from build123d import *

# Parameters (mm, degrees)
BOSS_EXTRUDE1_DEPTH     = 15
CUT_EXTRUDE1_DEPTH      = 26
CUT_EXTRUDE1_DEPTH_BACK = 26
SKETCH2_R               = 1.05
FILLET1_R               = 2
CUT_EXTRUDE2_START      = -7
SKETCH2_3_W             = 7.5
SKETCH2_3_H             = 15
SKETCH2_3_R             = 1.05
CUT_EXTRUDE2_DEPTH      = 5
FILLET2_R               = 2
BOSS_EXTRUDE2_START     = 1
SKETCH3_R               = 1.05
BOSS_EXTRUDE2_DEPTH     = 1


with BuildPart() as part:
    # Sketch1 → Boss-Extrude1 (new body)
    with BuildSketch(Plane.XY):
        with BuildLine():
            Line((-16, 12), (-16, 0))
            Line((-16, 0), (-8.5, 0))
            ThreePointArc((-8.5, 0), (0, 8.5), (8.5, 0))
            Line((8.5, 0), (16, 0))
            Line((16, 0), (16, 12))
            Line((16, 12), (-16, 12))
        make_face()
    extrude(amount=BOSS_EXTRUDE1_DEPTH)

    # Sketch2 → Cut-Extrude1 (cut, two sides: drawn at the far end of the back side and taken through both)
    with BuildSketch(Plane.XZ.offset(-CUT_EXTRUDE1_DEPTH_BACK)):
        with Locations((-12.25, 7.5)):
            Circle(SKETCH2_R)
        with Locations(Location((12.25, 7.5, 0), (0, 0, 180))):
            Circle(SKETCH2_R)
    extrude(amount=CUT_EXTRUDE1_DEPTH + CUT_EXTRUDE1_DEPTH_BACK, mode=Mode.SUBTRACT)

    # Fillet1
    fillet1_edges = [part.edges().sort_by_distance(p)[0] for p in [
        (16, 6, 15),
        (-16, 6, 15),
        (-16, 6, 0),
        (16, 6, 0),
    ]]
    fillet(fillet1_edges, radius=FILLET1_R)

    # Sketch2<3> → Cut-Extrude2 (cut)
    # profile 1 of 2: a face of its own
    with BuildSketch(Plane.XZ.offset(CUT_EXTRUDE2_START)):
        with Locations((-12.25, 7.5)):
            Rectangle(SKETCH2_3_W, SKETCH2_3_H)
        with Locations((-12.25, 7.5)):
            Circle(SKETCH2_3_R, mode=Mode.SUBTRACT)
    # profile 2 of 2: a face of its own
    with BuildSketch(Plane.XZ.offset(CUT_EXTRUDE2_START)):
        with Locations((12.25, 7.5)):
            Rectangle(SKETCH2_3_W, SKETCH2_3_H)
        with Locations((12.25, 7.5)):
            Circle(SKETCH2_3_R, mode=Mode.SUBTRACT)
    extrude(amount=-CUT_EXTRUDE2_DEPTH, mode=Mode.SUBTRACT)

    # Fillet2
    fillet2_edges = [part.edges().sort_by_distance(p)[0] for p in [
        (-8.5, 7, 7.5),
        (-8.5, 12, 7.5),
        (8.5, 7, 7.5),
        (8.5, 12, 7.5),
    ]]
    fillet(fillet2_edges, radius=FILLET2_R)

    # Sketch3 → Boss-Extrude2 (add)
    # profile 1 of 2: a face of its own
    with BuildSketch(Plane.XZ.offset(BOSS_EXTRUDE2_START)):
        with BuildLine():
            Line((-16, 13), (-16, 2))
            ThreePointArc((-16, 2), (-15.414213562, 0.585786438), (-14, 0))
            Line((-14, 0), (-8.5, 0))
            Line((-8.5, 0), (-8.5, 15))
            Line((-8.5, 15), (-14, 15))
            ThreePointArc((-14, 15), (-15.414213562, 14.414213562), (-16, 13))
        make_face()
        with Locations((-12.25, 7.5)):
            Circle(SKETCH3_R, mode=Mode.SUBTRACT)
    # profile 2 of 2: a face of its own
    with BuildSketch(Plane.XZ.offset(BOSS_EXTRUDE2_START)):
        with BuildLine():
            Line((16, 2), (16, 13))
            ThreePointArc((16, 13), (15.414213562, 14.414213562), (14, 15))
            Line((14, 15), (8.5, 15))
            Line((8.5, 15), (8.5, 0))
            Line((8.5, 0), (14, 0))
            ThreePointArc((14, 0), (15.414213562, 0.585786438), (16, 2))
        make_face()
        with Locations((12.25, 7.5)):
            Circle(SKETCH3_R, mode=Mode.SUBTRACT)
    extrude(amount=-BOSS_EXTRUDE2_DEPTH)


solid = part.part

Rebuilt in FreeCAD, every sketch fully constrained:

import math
import FreeCAD as App
import Part
import Sketcher

V = App.Vector


def edges_at(feature, points):
    """Names of the edges that pass closest to the given points."""
    edges = feature.Shape.Edges
    near = lambda p: min(range(len(edges)), key=lambda i: edges[i].distToShape(Part.Vertex(*p))[0])
    return sorted({f"Edge{near(p) + 1}" for p in points})

doc = App.newDocument("Part")
body = doc.addObject("PartDesign::Body", "Body")

# Sketch on XY plane
sketch1 = body.newObject("Sketcher::SketchObject", "Sketch")
sketch1.AttachmentSupport = (doc.getObject("XY_Plane"), [""])
sketch1.MapMode = "FlatFace"
sketch1.addGeometry(Part.LineSegment(V(-16, 12, 0), V(-16, 0, 0)), False)
sketch1.addGeometry(Part.LineSegment(V(-16, 0, 0), V(-8, 0, 0)), False)
sketch1.addGeometry(Part.ArcOfCircle(Part.Circle(V(0, 0, 0), V(0, 0, 1), 8), math.radians(0), math.radians(180)), False)
sketch1.addGeometry(Part.LineSegment(V(8, 0, 0), V(16, 0, 0)), False)
sketch1.addGeometry(Part.LineSegment(V(16, 0, 0), V(16, 12, 0)), False)
sketch1.addGeometry(Part.LineSegment(V(16, 12, 0), V(-16, 12, 0)), False)
sketch1.addConstraint(Sketcher.Constraint("Coincident", 0, 2, 1, 1))
sketch1.addConstraint(Sketcher.Constraint("Coincident", 1, 2, 2, 2))
sketch1.addConstraint(Sketcher.Constraint("Coincident", 2, 1, 3, 1))
sketch1.addConstraint(Sketcher.Constraint("Coincident", 3, 2, 4, 1))
sketch1.addConstraint(Sketcher.Constraint("Coincident", 4, 2, 5, 1))
sketch1.addConstraint(Sketcher.Constraint("Coincident", 5, 2, 0, 1))
sketch1.addConstraint(Sketcher.Constraint("Vertical", 0))
sketch1.addConstraint(Sketcher.Constraint("Horizontal", 1))
sketch1.addConstraint(Sketcher.Constraint("Horizontal", 3))
sketch1.addConstraint(Sketcher.Constraint("Vertical", 4))
sketch1.addConstraint(Sketcher.Constraint("Horizontal", 5))
sketch1.addConstraint(Sketcher.Constraint("Coincident", 2, 3, -1, 1))
sketch1.addConstraint(Sketcher.Constraint("Symmetric", 0, 2, 3, 2, -1, 1))
sketch1.addConstraint(Sketcher.Constraint("PointOnObject", 0, 2, -1))
sketch1.addConstraint(Sketcher.Constraint("Radius", 2, 8.5))
sketch1.addConstraint(Sketcher.Constraint("DistanceX", 5, 2, 5, 1, 32.0))
sketch1.addConstraint(Sketcher.Constraint("DistanceY", 0, 2, 0, 1, 12.0))
pad1 = body.newObject("PartDesign::Pad", "Pad")
pad1.Profile = sketch1
pad1.Length = 15

# Sketch on XZ plane
sketch2 = body.newObject("Sketcher::SketchObject", "Sketch001")
sketch2.AttachmentSupport = (doc.getObject("XZ_Plane"), [""])
sketch2.MapMode = "FlatFace"
sketch2.addGeometry(Part.Circle(V(-12.2, 7.5, 0), V(0, 0, 1), 1.1), False)
sketch2.addGeometry(Part.Circle(V(12.2, 7.5, 0), V(0, 0, 1), 1.1), False)
sketch2.addConstraint(Sketcher.Constraint("Equal", 0, 1))
sketch2.addConstraint(Sketcher.Constraint("Symmetric", 0, 3, 1, 3, -2))
sketch2.addConstraint(Sketcher.Constraint("Diameter", 0, 2.1))
sketch2.addConstraint(Sketcher.Constraint("DistanceY", -1, 1, 0, 3, 7.5))
sketch2.addConstraint(Sketcher.Constraint("DistanceX", 0, 3, 1, 3, 24.5))
pocket1 = body.newObject("PartDesign::Pocket", "Pocket")
pocket1.Profile = sketch2
pocket1.Type = "ThroughAll"
pocket1.Midplane = True
doc.recompute()

fillet = body.newObject("PartDesign::Fillet", "Fillet")
fillet.Base = (pocket1, edges_at(pocket1, [
    (16, 6, 15),
    (-16, 6, 15),
    (-16, 6, 0),
    (16, 6, 0),
]))
fillet.Radius = 2

# Sketch on XZ plane
sketch3 = body.newObject("Sketcher::SketchObject", "Sketch002")
sketch3.AttachmentSupport = (doc.getObject("XZ_Plane"), [""])
sketch3.MapMode = "FlatFace"
sketch3.AttachmentOffset = App.Placement(V(0, 0, -7), App.Rotation())
sketch3.addGeometry(Part.LineSegment(V(-16, 15, 0), V(-16, 0, 0)), False)
sketch3.addGeometry(Part.LineSegment(V(-16, 0, 0), V(-8.5, 0, 0)), False)
sketch3.addGeometry(Part.LineSegment(V(-8.5, 0, 0), V(-8.5, 15, 0)), False)
sketch3.addGeometry(Part.LineSegment(V(-8.5, 15, 0), V(-16, 15, 0)), False)
sketch3.addGeometry(Part.Circle(V(-12.2, 7.5, 0), V(0, 0, 1), 1.1), False)
sketch3.addGeometry(Part.LineSegment(V(8.5, 15, 0), V(8.5, 0, 0)), False)
sketch3.addGeometry(Part.LineSegment(V(8.5, 0, 0), V(16, 0, 0)), False)
sketch3.addGeometry(Part.LineSegment(V(16, 0, 0), V(16, 15, 0)), False)
sketch3.addGeometry(Part.LineSegment(V(16, 15, 0), V(8.5, 15, 0)), False)
sketch3.addGeometry(Part.Circle(V(12.2, 7.5, 0), V(0, 0, 1), 1.1), False)
sketch3.addConstraint(Sketcher.Constraint("Coincident", 0, 2, 1, 1))
sketch3.addConstraint(Sketcher.Constraint("Coincident", 1, 2, 2, 1))
sketch3.addConstraint(Sketcher.Constraint("Coincident", 2, 2, 3, 1))
sketch3.addConstraint(Sketcher.Constraint("Coincident", 3, 2, 0, 1))
sketch3.addConstraint(Sketcher.Constraint("Coincident", 5, 2, 6, 1))
sketch3.addConstraint(Sketcher.Constraint("Coincident", 6, 2, 7, 1))
sketch3.addConstraint(Sketcher.Constraint("Coincident", 7, 2, 8, 1))
sketch3.addConstraint(Sketcher.Constraint("Coincident", 8, 2, 5, 1))
sketch3.addConstraint(Sketcher.Constraint("Vertical", 0))
sketch3.addConstraint(Sketcher.Constraint("Horizontal", 1))
sketch3.addConstraint(Sketcher.Constraint("Vertical", 2))
sketch3.addConstraint(Sketcher.Constraint("Horizontal", 3))
sketch3.addConstraint(Sketcher.Constraint("Vertical", 5))
sketch3.addConstraint(Sketcher.Constraint("Horizontal", 6))
sketch3.addConstraint(Sketcher.Constraint("Vertical", 7))
sketch3.addConstraint(Sketcher.Constraint("Horizontal", 8))
sketch3.addConstraint(Sketcher.Constraint("Equal", 4, 9))
sketch3.addConstraint(Sketcher.Constraint("Symmetric", 1, 2, 5, 2, -1, 1))
sketch3.addConstraint(Sketcher.Constraint("Symmetric", 4, 3, 9, 3, -2))
sketch3.addConstraint(Sketcher.Constraint("Symmetric", 0, 2, 6, 2, -2))
sketch3.addConstraint(Sketcher.Constraint("Horizontal", 3, 2, 7, 2))
sketch3.addConstraint(Sketcher.Constraint("Diameter", 4, 2.1))
sketch3.addConstraint(Sketcher.Constraint("DistanceY", 0, 2, 0, 1, 15.0))
sketch3.addConstraint(Sketcher.Constraint("DistanceX", 1, 1, 1, 2, 7.5))
sketch3.addConstraint(Sketcher.Constraint("DistanceX", 0, 2, -1, 1, 16.0))
sketch3.addConstraint(Sketcher.Constraint("DistanceY", -1, 1, 4, 3, 7.5))
sketch3.addConstraint(Sketcher.Constraint("DistanceX", 4, 3, 9, 3, 24.5))
pocket2 = body.newObject("PartDesign::Pocket", "Pocket001")
pocket2.Profile = sketch3
pocket2.Length = 5
doc.recompute()

fillet2 = body.newObject("PartDesign::Fillet", "Fillet001")
fillet2.Base = (pocket2, edges_at(pocket2, [
    (-8.5, 7, 7.5),
    (-8.5, 12, 7.5),
    (8.5, 7, 7.5),
    (8.5, 12, 7.5),
]))
fillet2.Radius = 2

# Sketch on XZ plane
sketch4 = body.newObject("Sketcher::SketchObject", "Sketch003")
sketch4.AttachmentSupport = (doc.getObject("XZ_Plane"), [""])
sketch4.MapMode = "FlatFace"
sketch4.AttachmentOffset = App.Placement(V(0, 0, 1), App.Rotation())
sketch4.addGeometry(Part.LineSegment(V(-16, 13, 0), V(-16, 2, 0)), False)
sketch4.addGeometry(Part.ArcOfCircle(Part.Circle(V(-14, 2, 0), V(0, 0, 1), 2), math.radians(-180), math.radians(-90)), False)
sketch4.addGeometry(Part.LineSegment(V(-14, 0, 0), V(-8.5, 0, 0)), False)
sketch4.addGeometry(Part.LineSegment(V(-8.5, 0, 0), V(-8.5, 15, 0)), False)
sketch4.addGeometry(Part.LineSegment(V(-8.5, 15, 0), V(-14, 15, 0)), False)
sketch4.addGeometry(Part.ArcOfCircle(Part.Circle(V(-14, 13, 0), V(0, 0, 1), 2), math.radians(90), math.radians(180)), False)
sketch4.addGeometry(Part.Circle(V(-12.2, 7.5, 0), V(0, 0, 1), 1.1), False)
sketch4.addGeometry(Part.LineSegment(V(16, 2, 0), V(16, 13, 0)), False)
sketch4.addGeometry(Part.ArcOfCircle(Part.Circle(V(14, 13, 0), V(0, 0, 1), 2), math.radians(0), math.radians(90)), False)
sketch4.addGeometry(Part.LineSegment(V(14, 15, 0), V(8.5, 15, 0)), False)
sketch4.addGeometry(Part.LineSegment(V(8.5, 15, 0), V(8.5, 0, 0)), False)
sketch4.addGeometry(Part.LineSegment(V(8.5, 0, 0), V(14, 0, 0)), False)
sketch4.addGeometry(Part.ArcOfCircle(Part.Circle(V(14, 2, 0), V(0, 0, 1), 2), math.radians(-90), math.radians(0)), False)
sketch4.addGeometry(Part.Circle(V(12.2, 7.5, 0), V(0, 0, 1), 1.1), False)
sketch4.addConstraint(Sketcher.Constraint("Tangent", 0, 2, 1, 1))
sketch4.addConstraint(Sketcher.Constraint("Tangent", 1, 2, 2, 1))
sketch4.addConstraint(Sketcher.Constraint("Coincident", 2, 2, 3, 1))
sketch4.addConstraint(Sketcher.Constraint("Coincident", 3, 2, 4, 1))
sketch4.addConstraint(Sketcher.Constraint("Tangent", 4, 2, 5, 1))
sketch4.addConstraint(Sketcher.Constraint("Tangent", 5, 2, 0, 1))
sketch4.addConstraint(Sketcher.Constraint("Tangent", 7, 2, 8, 1))
sketch4.addConstraint(Sketcher.Constraint("Tangent", 8, 2, 9, 1))
sketch4.addConstraint(Sketcher.Constraint("Coincident", 9, 2, 10, 1))
sketch4.addConstraint(Sketcher.Constraint("Coincident", 10, 2, 11, 1))
sketch4.addConstraint(Sketcher.Constraint("Tangent", 11, 2, 12, 1))
sketch4.addConstraint(Sketcher.Constraint("Tangent", 12, 2, 7, 1))
sketch4.addConstraint(Sketcher.Constraint("Vertical", 0))
sketch4.addConstraint(Sketcher.Constraint("Horizontal", 2))
sketch4.addConstraint(Sketcher.Constraint("Vertical", 3))
sketch4.addConstraint(Sketcher.Constraint("Horizontal", 4))
sketch4.addConstraint(Sketcher.Constraint("Vertical", 7))
sketch4.addConstraint(Sketcher.Constraint("Horizontal", 9))
sketch4.addConstraint(Sketcher.Constraint("Vertical", 10))
sketch4.addConstraint(Sketcher.Constraint("Horizontal", 11))
sketch4.addConstraint(Sketcher.Constraint("Equal", 1, 5))
sketch4.addConstraint(Sketcher.Constraint("Equal", 5, 8))
sketch4.addConstraint(Sketcher.Constraint("Equal", 8, 12))
sketch4.addConstraint(Sketcher.Constraint("Equal", 6, 13))
sketch4.addConstraint(Sketcher.Constraint("Symmetric", 2, 2, 10, 2, -1, 1))
sketch4.addConstraint(Sketcher.Constraint("Symmetric", 5, 3, 8, 3, -2))
sketch4.addConstraint(Sketcher.Constraint("Symmetric", 6, 3, 13, 3, -2))
sketch4.addConstraint(Sketcher.Constraint("PointOnObject", 1, 2, -1))
sketch4.addConstraint(Sketcher.Constraint("Radius", 1, 2.0))
sketch4.addConstraint(Sketcher.Constraint("Diameter", 6, 2.1))
sketch4.addConstraint(Sketcher.Constraint("DistanceY", 0, 2, 0, 1, 11.0))
sketch4.addConstraint(Sketcher.Constraint("DistanceX", 2, 1, 2, 2, 5.5))
sketch4.addConstraint(Sketcher.Constraint("DistanceX", 1, 3, -1, 1, 14.0))
sketch4.addConstraint(Sketcher.Constraint("DistanceY", -1, 1, 6, 3, 7.5))
sketch4.addConstraint(Sketcher.Constraint("DistanceX", 6, 3, 13, 3, 24.5))
pad2 = body.newObject("PartDesign::Pad", "Pad001")
pad2.Profile = sketch4
pad2.Length = 1
pad2.Reversed = True

doc.recompute()
